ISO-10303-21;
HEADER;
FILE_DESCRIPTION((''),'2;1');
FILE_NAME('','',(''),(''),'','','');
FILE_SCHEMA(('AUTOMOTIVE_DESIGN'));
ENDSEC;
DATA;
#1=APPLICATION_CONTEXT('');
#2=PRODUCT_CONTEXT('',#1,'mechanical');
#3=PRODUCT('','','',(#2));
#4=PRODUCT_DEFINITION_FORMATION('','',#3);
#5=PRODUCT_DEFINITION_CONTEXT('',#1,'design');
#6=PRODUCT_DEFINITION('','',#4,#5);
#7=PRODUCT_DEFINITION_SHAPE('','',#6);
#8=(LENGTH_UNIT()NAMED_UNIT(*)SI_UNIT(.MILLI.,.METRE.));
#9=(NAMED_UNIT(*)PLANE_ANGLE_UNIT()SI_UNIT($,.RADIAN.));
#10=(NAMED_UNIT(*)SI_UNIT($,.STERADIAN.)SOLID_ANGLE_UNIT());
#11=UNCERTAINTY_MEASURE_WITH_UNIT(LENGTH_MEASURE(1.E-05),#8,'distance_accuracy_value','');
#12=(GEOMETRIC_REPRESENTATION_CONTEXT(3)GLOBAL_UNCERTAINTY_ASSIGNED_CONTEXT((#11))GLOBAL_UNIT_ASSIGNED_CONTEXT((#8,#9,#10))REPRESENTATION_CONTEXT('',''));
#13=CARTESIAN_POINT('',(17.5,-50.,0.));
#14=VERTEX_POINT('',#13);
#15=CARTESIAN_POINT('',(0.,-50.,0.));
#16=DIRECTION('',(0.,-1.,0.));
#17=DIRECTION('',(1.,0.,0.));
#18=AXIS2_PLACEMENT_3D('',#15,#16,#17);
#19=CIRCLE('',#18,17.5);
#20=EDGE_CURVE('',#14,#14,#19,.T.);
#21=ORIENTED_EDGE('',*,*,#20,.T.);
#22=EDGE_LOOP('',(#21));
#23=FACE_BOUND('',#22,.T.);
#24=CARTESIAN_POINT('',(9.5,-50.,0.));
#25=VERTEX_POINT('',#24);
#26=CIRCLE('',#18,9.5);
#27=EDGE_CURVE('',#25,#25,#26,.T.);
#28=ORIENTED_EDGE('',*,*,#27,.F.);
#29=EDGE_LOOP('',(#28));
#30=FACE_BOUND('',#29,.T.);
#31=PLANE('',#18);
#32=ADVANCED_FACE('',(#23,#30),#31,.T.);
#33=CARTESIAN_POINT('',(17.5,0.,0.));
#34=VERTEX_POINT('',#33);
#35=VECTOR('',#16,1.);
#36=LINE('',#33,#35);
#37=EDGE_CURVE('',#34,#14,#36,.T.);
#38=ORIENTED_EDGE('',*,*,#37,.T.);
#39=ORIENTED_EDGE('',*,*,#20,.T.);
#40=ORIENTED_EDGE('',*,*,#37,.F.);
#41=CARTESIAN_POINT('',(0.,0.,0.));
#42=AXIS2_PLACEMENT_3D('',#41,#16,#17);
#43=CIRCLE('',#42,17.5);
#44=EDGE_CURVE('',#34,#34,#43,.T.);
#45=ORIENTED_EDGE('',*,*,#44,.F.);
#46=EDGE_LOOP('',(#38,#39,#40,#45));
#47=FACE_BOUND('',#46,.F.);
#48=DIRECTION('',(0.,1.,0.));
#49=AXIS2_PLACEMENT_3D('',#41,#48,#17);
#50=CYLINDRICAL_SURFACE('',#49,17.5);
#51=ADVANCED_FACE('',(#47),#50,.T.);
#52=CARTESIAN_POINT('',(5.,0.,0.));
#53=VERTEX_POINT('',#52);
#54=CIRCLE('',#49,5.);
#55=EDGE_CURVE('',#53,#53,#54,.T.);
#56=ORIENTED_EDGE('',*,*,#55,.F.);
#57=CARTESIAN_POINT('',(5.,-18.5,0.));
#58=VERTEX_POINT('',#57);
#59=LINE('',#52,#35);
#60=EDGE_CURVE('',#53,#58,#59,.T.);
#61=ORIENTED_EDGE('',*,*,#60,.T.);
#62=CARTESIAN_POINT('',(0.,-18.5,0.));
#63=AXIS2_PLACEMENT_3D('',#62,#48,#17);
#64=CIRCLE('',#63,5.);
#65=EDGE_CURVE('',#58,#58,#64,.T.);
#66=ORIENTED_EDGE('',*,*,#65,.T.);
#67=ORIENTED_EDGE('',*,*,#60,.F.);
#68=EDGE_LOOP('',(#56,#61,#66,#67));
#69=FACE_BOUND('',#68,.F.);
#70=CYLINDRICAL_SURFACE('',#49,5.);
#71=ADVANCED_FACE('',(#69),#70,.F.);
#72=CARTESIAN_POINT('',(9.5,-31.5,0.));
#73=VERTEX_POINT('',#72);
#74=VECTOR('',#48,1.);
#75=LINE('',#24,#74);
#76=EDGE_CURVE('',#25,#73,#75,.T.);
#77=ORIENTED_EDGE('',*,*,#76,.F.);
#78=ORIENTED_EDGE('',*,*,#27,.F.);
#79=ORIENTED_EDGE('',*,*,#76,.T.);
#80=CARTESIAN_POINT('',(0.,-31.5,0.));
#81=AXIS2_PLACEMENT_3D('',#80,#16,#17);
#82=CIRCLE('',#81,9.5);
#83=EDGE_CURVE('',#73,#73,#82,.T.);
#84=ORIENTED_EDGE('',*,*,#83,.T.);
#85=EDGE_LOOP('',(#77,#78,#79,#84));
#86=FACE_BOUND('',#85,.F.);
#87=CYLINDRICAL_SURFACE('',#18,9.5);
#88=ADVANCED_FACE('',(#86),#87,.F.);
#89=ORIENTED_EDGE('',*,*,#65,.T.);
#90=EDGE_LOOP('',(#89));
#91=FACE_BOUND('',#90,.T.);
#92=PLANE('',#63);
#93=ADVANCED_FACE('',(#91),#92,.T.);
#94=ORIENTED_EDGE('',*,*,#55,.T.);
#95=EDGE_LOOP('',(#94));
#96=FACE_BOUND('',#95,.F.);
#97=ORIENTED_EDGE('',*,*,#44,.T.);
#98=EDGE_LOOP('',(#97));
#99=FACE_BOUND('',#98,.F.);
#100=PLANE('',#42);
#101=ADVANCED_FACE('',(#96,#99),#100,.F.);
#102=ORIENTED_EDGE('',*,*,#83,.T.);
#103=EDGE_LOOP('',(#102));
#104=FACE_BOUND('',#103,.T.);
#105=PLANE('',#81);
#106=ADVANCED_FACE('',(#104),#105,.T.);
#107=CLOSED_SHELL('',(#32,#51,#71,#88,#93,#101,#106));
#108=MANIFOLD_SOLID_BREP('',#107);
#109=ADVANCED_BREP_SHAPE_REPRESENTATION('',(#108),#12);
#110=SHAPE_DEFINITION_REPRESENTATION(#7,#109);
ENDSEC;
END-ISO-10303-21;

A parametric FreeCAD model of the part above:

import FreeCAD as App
import Part
import Sketcher

V = App.Vector

doc = App.newDocument("Part")
body = doc.addObject("PartDesign::Body", "Body")

# Sketch on XZ plane
sketch1 = body.newObject("Sketcher::SketchObject", "Sketch")
sketch1.AttachmentSupport = (doc.getObject("XZ_Plane"), [""])
sketch1.MapMode = "FlatFace"
sketch1.addGeometry(Part.Circle(V(0, 0, 0), V(0, 0, 1), 18), False)
sketch1.addConstraint(Sketcher.Constraint("Coincident", 0, 3, -1, 1))
sketch1.addConstraint(Sketcher.Constraint("Diameter", 0, 35.0))
pad1 = body.newObject("PartDesign::Pad", "Pad")
pad1.Profile = sketch1
pad1.Length = 50

# Sketch on XZ plane
sketch2 = body.newObject("Sketcher::SketchObject", "Sketch001")
sketch2.AttachmentSupport = (doc.getObject("XZ_Plane"), [""])
sketch2.MapMode = "FlatFace"
sketch2.AttachmentOffset = App.Placement(V(0, 0, 50), App.Rotation())
sketch2.addGeometry(Part.Circle(V(0, 0, 0), V(0, 0, 1), 10), False)
sketch2.addConstraint(Sketcher.Constraint("Coincident", 0, 3, -1, 1))
sketch2.addConstraint(Sketcher.Constraint("Diameter", 0, 19.0))
pocket1 = body.newObject("PartDesign::Pocket", "Pocket")
pocket1.Profile = sketch2
pocket1.Length = 18.5

# Sketch on XZ plane
sketch3 = body.newObject("Sketcher::SketchObject", "Sketch002")
sketch3.AttachmentSupport = (doc.getObject("XZ_Plane"), [""])
sketch3.MapMode = "FlatFace"
sketch3.addGeometry(Part.Circle(V(0, 0, 0), V(0, 0, 1), 5), False)
sketch3.addConstraint(Sketcher.Constraint("Coincident", 0, 3, -1, 1))
sketch3.addConstraint(Sketcher.Constraint("Diameter", 0, 10.0))
pocket2 = body.newObject("PartDesign::Pocket", "Pocket001")
pocket2.Profile = sketch3
pocket2.Length = 18.5
pocket2.Reversed = True

doc.recompute()
